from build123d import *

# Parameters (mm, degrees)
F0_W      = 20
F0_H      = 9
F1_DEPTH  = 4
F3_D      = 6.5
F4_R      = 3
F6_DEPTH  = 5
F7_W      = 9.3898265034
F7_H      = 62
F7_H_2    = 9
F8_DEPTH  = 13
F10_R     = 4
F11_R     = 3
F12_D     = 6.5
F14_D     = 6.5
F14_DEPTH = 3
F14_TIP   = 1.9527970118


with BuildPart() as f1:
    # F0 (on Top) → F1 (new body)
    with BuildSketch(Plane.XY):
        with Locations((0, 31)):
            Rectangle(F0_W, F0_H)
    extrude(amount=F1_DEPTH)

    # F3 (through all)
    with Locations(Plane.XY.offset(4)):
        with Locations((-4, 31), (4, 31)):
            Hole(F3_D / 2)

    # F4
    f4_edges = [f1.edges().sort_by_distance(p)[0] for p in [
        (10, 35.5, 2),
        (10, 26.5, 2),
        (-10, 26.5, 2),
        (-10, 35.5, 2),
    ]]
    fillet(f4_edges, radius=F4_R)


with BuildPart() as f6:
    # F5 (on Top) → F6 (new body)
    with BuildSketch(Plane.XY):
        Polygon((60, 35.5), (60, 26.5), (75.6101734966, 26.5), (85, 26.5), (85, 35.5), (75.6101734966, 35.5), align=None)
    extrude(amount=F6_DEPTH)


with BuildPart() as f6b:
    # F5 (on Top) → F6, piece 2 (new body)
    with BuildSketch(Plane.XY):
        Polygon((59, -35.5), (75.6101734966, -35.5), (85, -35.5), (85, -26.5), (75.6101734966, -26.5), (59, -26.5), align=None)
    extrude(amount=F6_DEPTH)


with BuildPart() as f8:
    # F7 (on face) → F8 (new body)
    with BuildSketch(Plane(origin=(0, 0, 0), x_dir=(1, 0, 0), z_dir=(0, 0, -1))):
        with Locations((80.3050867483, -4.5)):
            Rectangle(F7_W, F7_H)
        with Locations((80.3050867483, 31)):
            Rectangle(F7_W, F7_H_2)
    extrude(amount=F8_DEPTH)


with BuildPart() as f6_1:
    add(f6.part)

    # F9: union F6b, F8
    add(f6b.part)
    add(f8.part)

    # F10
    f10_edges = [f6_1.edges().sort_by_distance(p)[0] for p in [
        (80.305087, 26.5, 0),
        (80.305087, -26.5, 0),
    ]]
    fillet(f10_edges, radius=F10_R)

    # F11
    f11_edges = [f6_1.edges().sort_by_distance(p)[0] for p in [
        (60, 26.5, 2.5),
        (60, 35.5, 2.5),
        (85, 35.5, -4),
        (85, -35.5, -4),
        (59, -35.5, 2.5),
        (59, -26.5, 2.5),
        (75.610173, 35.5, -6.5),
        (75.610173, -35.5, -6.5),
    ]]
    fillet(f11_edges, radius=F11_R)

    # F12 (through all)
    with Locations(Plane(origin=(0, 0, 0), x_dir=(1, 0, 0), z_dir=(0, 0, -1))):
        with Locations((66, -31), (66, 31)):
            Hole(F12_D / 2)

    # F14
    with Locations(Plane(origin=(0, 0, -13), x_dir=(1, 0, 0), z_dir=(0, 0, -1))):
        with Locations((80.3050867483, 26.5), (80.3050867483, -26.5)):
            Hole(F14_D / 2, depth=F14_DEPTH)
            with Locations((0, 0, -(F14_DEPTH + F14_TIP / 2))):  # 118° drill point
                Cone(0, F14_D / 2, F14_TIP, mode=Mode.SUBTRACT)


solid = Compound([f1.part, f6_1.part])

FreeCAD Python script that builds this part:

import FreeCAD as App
import Part
import Sketcher

V = App.Vector
Q = App.Units.Quantity


def edges_at(feature, points):
    """Names of the edges that pass closest to the given points."""
    edges = feature.Shape.Edges
    near = lambda p: min(range(len(edges)), key=lambda i: edges[i].distToShape(Part.Vertex(*p))[0])
    return sorted({f"Edge{near(p) + 1}" for p in points})

doc = App.newDocument("Part")
params = doc.addObject("Spreadsheet::Sheet", "Params")
for row, (alias, value) in enumerate([
    ("sketch1_width", "20 mm"),
    ("sketch1_height", "9 mm"),
    ("pad1_length", "4 mm"),
    ("sketch2_diameter", "6.5 mm"),
    ("hole_diameter", "6.5 mm"),
    ("fillet_radius", "3 mm"),
    ("sketch3_width", "25 mm"),
    ("sketch3_height", "9 mm"),
    ("pad2_length", "5 mm"),
    ("sketch4_width", "26 mm"),
    ("sketch4_height", "9 mm"),
    ("pad3_length", "5 mm"),
    ("sketch5_height", "71 mm"),
    ("pad4_length", "13 mm"),
    ("fillet2_radius", "4 mm"),
    ("fillet3_radius", "3 mm"),
    ("sketch6_diameter", "6.5 mm"),
    ("hole2_diameter", "6.5 mm"),
    ("sketch7_diameter", "6.5 mm"),
    ("hole3_diameter", "6.5 mm"),
    ("hole3_depth", "3 mm"),
], start=1):
    params.set(f"A{row}", alias)
    params.set(f"B{row}", "=" + value)
    params.setAlias(f"B{row}", alias)

body = doc.addObject("PartDesign::Body", "Body")

# Sketch on XY plane
sketch1 = doc.addObject("Sketcher::SketchObject", "Sketch")
body.addObject(sketch1)
sketch1.AttachmentSupport = (doc.XY_Plane, [""])
sketch1.MapMode = "FlatFace"
sketch1.addGeometry([
    Part.LineSegment(V(-10, 36, 0), V(-10, 26, 0)),
    Part.LineSegment(V(-10, 26, 0), V(10, 26, 0)),
    Part.LineSegment(V(10, 26, 0), V(10, 36, 0)),
    Part.LineSegment(V(10, 36, 0), V(-10, 36, 0)),
], False)
sketch1.addConstraint([
    Sketcher.Constraint("Coincident", 0, 2, 1, 1),
    Sketcher.Constraint("Coincident", 1, 2, 2, 1),
    Sketcher.Constraint("Coincident", 2, 2, 3, 1),
    Sketcher.Constraint("Coincident", 3, 2, 0, 1),
    Sketcher.Constraint("Vertical", 0),
    Sketcher.Constraint("Horizontal", 1),
    Sketcher.Constraint("Vertical", 2),
    Sketcher.Constraint("Horizontal", 3),
    Sketcher.Constraint("DistanceX", 1, 1, 1, 2, Q("20 mm")),
    Sketcher.Constraint("DistanceY", 0, 2, 0, 1, Q("9 mm")),
    Sketcher.Constraint("DistanceX", 0, 2, -1, 1, Q("10 mm")),
    Sketcher.Constraint("DistanceY", -1, 1, 0, 2, Q("26.5 mm")),
])
sketch1.setExpression("Constraints[8]", "Params.sketch1_width")
sketch1.setExpression("Constraints[9]", "Params.sketch1_height")
pad1 = doc.addObject("PartDesign::Pad", "Pad")
body.addObject(pad1)
pad1.Profile = sketch1
pad1.setExpression("Length", "Params.pad1_length")

# Sketch on XY plane
sketch2 = doc.addObject("Sketcher::SketchObject", "Sketch001")
body.addObject(sketch2)
sketch2.AttachmentSupport = (doc.XY_Plane, [""])
sketch2.MapMode = "FlatFace"
sketch2.AttachmentOffset = App.Placement(V(0, 0, 4), App.Rotation())
sketch2.addGeometry([
    Part.Circle(V(-4, 31, 0), V(0, 0, 1), 3.2),
    Part.Circle(V(4, 31, 0), V(0, 0, 1), 3.2),
], False)
sketch2.addConstraint([
    Sketcher.Constraint("Equal", 0, 1),
    Sketcher.Constraint("Symmetric", 0, 3, 1, 3, -2),
    Sketcher.Constraint("Diameter", 0, Q("6.5 mm")),
    Sketcher.Constraint("DistanceX", 0, 3, -1, 1, Q("4 mm")),
    Sketcher.Constraint("DistanceY", -1, 1, 0, 3, Q("31 mm")),
])
sketch2.setExpression("Constraints[2]", "Params.sketch2_diameter")
doc.recompute()
hole = doc.addObject("PartDesign::Hole", "Hole")
body.addObject(hole)
hole.Profile = sketch2
hole.ThreadType = "None"
hole.setExpression("Diameter", "Params.hole_diameter")
hole.DepthType = "ThroughAll"
doc.recompute()

fillet = doc.addObject("PartDesign::Fillet", "Fillet")
body.addObject(fillet)
fillet.Base = (hole, edges_at(hole, [
    (10, 35.5, 2),
    (10, 26.5, 2),
    (-10, 26.5, 2),
    (-10, 35.5, 2),
]))
fillet.setExpression("Radius", "Params.fillet_radius")
body2 = doc.addObject("PartDesign::Body", "Body001")

# Sketch on XY plane
sketch3 = doc.addObject("Sketcher::SketchObject", "Sketch002")
body2.addObject(sketch3)
sketch3.AttachmentSupport = (doc.getObject("XY_Plane001"), [""])
sketch3.MapMode = "FlatFace"
sketch3.addGeometry([
    Part.LineSegment(V(60, 36, 0), V(60, 26, 0)),
    Part.LineSegment(V(60, 26, 0), V(85, 26, 0)),
    Part.LineSegment(V(85, 26, 0), V(85, 36, 0)),
    Part.LineSegment(V(85, 36, 0), V(60, 36, 0)),
], False)
sketch3.addConstraint([
    Sketcher.Constraint("Coincident", 0, 2, 1, 1),
    Sketcher.Constraint("Coincident", 1, 2, 2, 1),
    Sketcher.Constraint("Coincident", 2, 2, 3, 1),
    Sketcher.Constraint("Coincident", 3, 2, 0, 1),
    Sketcher.Constraint("Vertical", 0),
    Sketcher.Constraint("Horizontal", 1),
    Sketcher.Constraint("Vertical", 2),
    Sketcher.Constraint("Horizontal", 3),
    Sketcher.Constraint("DistanceX", 1, 1, 1, 2, Q("25 mm")),
    Sketcher.Constraint("DistanceY", 0, 2, 0, 1, Q("9 mm")),
    Sketcher.Constraint("DistanceX", -1, 1, 0, 2, Q("60 mm")),
    Sketcher.Constraint("DistanceY", -1, 1, 0, 2, Q("26.5 mm")),
])
sketch3.setExpression("Constraints[8]", "Params.sketch3_width")
sketch3.setExpression("Constraints[9]", "Params.sketch3_height")
pad2 = doc.addObject("PartDesign::Pad", "Pad001")
body2.addObject(pad2)
pad2.Profile = sketch3
pad2.setExpression("Length", "Params.pad2_length")
body3 = doc.addObject("PartDesign::Body", "Body002")

# Sketch on XY plane
sketch4 = doc.addObject("Sketcher::SketchObject", "Sketch003")
body3.addObject(sketch4)
sketch4.AttachmentSupport = (doc.getObject("XY_Plane002"), [""])
sketch4.MapMode = "FlatFace"
sketch4.addGeometry([
    Part.LineSegment(V(59, -36, 0), V(85, -36, 0)),
    Part.LineSegment(V(85, -36, 0), V(85, -26, 0)),
    Part.LineSegment(V(85, -26, 0), V(59, -26, 0)),
    Part.LineSegment(V(59, -26, 0), V(59, -36, 0)),
], False)
sketch4.addConstraint([
    Sketcher.Constraint("Coincident", 0, 2, 1, 1),
    Sketcher.Constraint("Coincident", 1, 2, 2, 1),
    Sketcher.Constraint("Coincident", 2, 2, 3, 1),
    Sketcher.Constraint("Coincident", 3, 2, 0, 1),
    Sketcher.Constraint("Horizontal", 0),
    Sketcher.Constraint("Vertical", 1),
    Sketcher.Constraint("Horizontal", 2),
    Sketcher.Constraint("Vertical", 3),
    Sketcher.Constraint("DistanceX", 0, 1, 0, 2, Q("26 mm")),
    Sketcher.Constraint("DistanceY", 1, 1, 1, 2, Q("9 mm")),
    Sketcher.Constraint("DistanceX", -1, 1, 0, 2, Q("85 mm")),
    Sketcher.Constraint("DistanceY", 0, 2, -1, 1, Q("35.5 mm")),
])
sketch4.setExpression("Constraints[8]", "Params.sketch4_width")
sketch4.setExpression("Constraints[9]", "Params.sketch4_height")
pad3 = doc.addObject("PartDesign::Pad", "Pad002")
body3.addObject(pad3)
pad3.Profile = sketch4
pad3.setExpression("Length", "Params.pad3_length")
body4 = doc.addObject("PartDesign::Body", "Body003")

# Sketch on XY plane
sketch5 = doc.addObject("Sketcher::SketchObject", "Sketch004")
body4.addObject(sketch5)
sketch5.AttachmentSupport = (doc.getObject("XY_Plane003"), [""])
sketch5.MapMode = "FlatFace"
sketch5.addGeometry([
    Part.LineSegment(V(76, 36, 0), V(85, 36, 0)),
    Part.LineSegment(V(85, 36, 0), V(85, -36, 0)),
    Part.LineSegment(V(85, -36, 0), V(76, -36, 0)),
    Part.LineSegment(V(76, -36, 0), V(76, 36, 0)),
], False)
sketch5.addConstraint([
    Sketcher.Constraint("Coincident", 0, 2, 1, 1),
    Sketcher.Constraint("Coincident", 1, 2, 2, 1),
    Sketcher.Constraint("Coincident", 2, 2, 3, 1),
    Sketcher.Constraint("Coincident", 3, 2, 0, 1),
    Sketcher.Constraint("Horizontal", 0),
    Sketcher.Constraint("Vertical", 1),
    Sketcher.Constraint("Horizontal", 2),
    Sketcher.Constraint("Vertical", 3),
    Sketcher.Constraint("DistanceY", 1, 2, 1, 1, Q("71 mm")),
    Sketcher.Constraint("DistanceX", -1, 1, 0, 2, Q("85 mm")),
    Sketcher.Constraint("DistanceY", -1, 1, 0, 2, Q("35.5 mm")),
    Sketcher.Constraint("DistanceX", 0, 1, 0, 2, Q("9.389827 mm")),
])
sketch5.setExpression("Constraints[8]", "Params.sketch5_height")
pad4 = doc.addObject("PartDesign::Pad", "Pad003")
body4.addObject(pad4)
pad4.Profile = sketch5
pad4.setExpression("Length", "Params.pad4_length")
pad4.Reversed = True
body2.AllowCompound = True
doc.recompute()

boolean = doc.addObject("PartDesign::Boolean", "Boolean")
body2.addObject(boolean)
boolean.Type = "Fuse"
boolean.addObjects([body3])
doc.recompute()

boolean2 = doc.addObject("PartDesign::Boolean", "Boolean001")
body2.addObject(boolean2)
boolean2.Type = "Fuse"
boolean2.addObjects([body4])
doc.recompute()

fillet2 = doc.addObject("PartDesign::Fillet", "Fillet001")
body2.addObject(fillet2)
fillet2.Base = (boolean2, edges_at(boolean2, [(80.305, 26.5, 0), (80.305, -26.5, 0)]))
fillet2.setExpression("Radius", "Params.fillet2_radius")
doc.recompute()

fillet3 = doc.addObject("PartDesign::Fillet", "Fillet002")
body2.addObject(fillet3)
fillet3.Base = (fillet2, edges_at(fillet2, [
    (60, 26.5, 2.5),
    (60, 35.5, 2.5),
    (85, 35.5, -4),
    (85, -35.5, -4),
    (59, -35.5, 2.5),
    (59, -26.5, 2.5),
    (75.61, 35.5, -6.5),
    (75.61, -35.5, -6.5),
]))
fillet3.setExpression("Radius", "Params.fillet3_radius")

# Sketch on XY plane
sketch6 = doc.addObject("Sketcher::SketchObject", "Sketch005")
body2.addObject(sketch6)
sketch6.AttachmentSupport = (doc.getObject("XY_Plane001"), [""])
sketch6.MapMode = "FlatFace"
sketch6.addGeometry([
    Part.Circle(V(66, 31, 0), V(0, 0, 1), 3.2),
    Part.Circle(V(66, -31, 0), V(0, 0, 1), 3.2),
], False)
sketch6.addConstraint([
    Sketcher.Constraint("Equal", 0, 1),
    Sketcher.Constraint("Symmetric", 0, 3, 1, 3, -1),
    Sketcher.Constraint("Diameter", 0, Q("6.5 mm")),
    Sketcher.Constraint("DistanceX", -1, 1, 0, 3, Q("66 mm")),
    Sketcher.Constraint("DistanceY", -1, 1, 0, 3, Q("31 mm")),
])
sketch6.setExpression("Constraints[2]", "Params.sketch6_diameter")
doc.recompute()
hole2 = doc.addObject("PartDesign::Hole", "Hole001")
body2.addObject(hole2)
hole2.Profile = sketch6
hole2.ThreadType = "None"
hole2.setExpression("Diameter", "Params.hole2_diameter")
hole2.DepthType = "ThroughAll"
hole2.Reversed = True

# Sketch on XY plane
sketch7 = doc.addObject("Sketcher::SketchObject", "Sketch006")
body2.addObject(sketch7)
sketch7.AttachmentSupport = (doc.getObject("XY_Plane001"), [""])
sketch7.MapMode = "FlatFace"
sketch7.AttachmentOffset = App.Placement(V(0, 0, -13), App.Rotation())
sketch7.addGeometry([
    Part.Circle(V(80.3, -26.5, 0), V(0, 0, 1), 3.2),
    Part.Circle(V(80.3, 26.5, 0), V(0, 0, 1), 3.2),
], False)
sketch7.addConstraint([
    Sketcher.Constraint("Equal", 0, 1),
    Sketcher.Constraint("Symmetric", 0, 3, 1, 3, -1),
    Sketcher.Constraint("Diameter", 0, Q("6.5 mm")),
    Sketcher.Constraint("DistanceY", 0, 3, 1, 3, Q("53 mm")),
    Sketcher.Constraint("DistanceX", -1, 1, 0, 3, Q("80.305087 mm")),
])
sketch7.setExpression("Constraints[2]", "Params.sketch7_diameter")
doc.recompute()
hole3 = doc.addObject("PartDesign::Hole", "Hole002")
body2.addObject(hole3)
hole3.Profile = sketch7
hole3.ThreadType = "None"
hole3.setExpression("Diameter", "Params.hole3_diameter")
hole3.DepthType = "Dimension"
hole3.setExpression("Depth", "Params.hole3_depth")
hole3.DrillPoint = "Angled"
hole3.DrillPointAngle = 118
hole3.Reversed = True

doc.recompute()
